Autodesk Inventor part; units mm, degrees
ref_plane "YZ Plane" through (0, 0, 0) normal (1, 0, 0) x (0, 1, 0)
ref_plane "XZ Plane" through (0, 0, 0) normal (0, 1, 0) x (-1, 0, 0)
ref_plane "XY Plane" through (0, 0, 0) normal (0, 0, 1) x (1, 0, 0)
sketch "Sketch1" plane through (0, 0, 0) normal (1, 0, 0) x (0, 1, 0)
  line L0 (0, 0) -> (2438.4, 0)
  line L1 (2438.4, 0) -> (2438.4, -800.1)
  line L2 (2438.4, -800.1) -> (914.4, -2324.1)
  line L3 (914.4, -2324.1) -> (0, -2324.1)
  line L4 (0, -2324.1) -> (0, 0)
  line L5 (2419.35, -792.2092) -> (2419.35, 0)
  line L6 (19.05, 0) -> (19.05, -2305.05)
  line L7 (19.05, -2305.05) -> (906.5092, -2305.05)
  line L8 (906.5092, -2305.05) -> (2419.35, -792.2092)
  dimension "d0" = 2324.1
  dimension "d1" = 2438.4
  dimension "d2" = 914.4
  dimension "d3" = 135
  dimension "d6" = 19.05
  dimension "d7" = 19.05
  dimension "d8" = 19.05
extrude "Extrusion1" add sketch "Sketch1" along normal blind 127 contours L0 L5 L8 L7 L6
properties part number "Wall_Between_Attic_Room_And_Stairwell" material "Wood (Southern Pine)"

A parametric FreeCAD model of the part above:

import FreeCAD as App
import Part
import Sketcher
Q = App.Units.Quantity

doc = App.newDocument("Part")
body = doc.addObject("PartDesign::Body", "Body")

sketch1 = body.newObject("Sketcher::SketchObject", "Sketch")
sketch1.AttachmentSupport = (doc.getObject("YZ_Plane"), [""])
sketch1.MapMode = "FlatFace"
sketch1.addGeometry([
    Part.LineSegment(App.Vector(2419, 0, 0), App.Vector(19, 0, 0)),
    Part.LineSegment(App.Vector(19, 0, 0), App.Vector(19, -2305, 0)),
    Part.LineSegment(App.Vector(19, -2305, 0), App.Vector(907, -2305, 0)),
    Part.LineSegment(App.Vector(907, -2305, 0), App.Vector(2419, -792, 0)),
    Part.LineSegment(App.Vector(2419, -792, 0), App.Vector(2419, 0, 0)),
], False)
sketch1.addConstraint([
    Sketcher.Constraint("Coincident", 0, 2, 1, 1),
    Sketcher.Constraint("Coincident", 1, 2, 2, 1),
    Sketcher.Constraint("Coincident", 2, 2, 3, 1),
    Sketcher.Constraint("Coincident", 3, 2, 4, 1),
    Sketcher.Constraint("Coincident", 4, 2, 0, 1),
    Sketcher.Constraint("Horizontal", 0),
    Sketcher.Constraint("Vertical", 1),
    Sketcher.Constraint("Horizontal", 2),
    Sketcher.Constraint("Vertical", 4),
    Sketcher.Constraint("PointOnObject", 0, 2, -1),
    Sketcher.Constraint("DistanceX", -1, 1, 0, 2, Q("0.75 in")),
    Sketcher.Constraint("DistanceX", 0, 2, 0, 1, Q("94.5 in")),
    Sketcher.Constraint("Angle", 3, Q("45 deg")),
    Sketcher.Constraint("DistanceY", 1, 2, 1, 1, Q("90.75 in")),
    Sketcher.Constraint("Distance", 3, Q("84.2315 in")),
])
pad1 = body.newObject("PartDesign::Pad", "Pad")
pad1.Profile = sketch1
pad1.Length = Q("5 in")

doc.recompute()
